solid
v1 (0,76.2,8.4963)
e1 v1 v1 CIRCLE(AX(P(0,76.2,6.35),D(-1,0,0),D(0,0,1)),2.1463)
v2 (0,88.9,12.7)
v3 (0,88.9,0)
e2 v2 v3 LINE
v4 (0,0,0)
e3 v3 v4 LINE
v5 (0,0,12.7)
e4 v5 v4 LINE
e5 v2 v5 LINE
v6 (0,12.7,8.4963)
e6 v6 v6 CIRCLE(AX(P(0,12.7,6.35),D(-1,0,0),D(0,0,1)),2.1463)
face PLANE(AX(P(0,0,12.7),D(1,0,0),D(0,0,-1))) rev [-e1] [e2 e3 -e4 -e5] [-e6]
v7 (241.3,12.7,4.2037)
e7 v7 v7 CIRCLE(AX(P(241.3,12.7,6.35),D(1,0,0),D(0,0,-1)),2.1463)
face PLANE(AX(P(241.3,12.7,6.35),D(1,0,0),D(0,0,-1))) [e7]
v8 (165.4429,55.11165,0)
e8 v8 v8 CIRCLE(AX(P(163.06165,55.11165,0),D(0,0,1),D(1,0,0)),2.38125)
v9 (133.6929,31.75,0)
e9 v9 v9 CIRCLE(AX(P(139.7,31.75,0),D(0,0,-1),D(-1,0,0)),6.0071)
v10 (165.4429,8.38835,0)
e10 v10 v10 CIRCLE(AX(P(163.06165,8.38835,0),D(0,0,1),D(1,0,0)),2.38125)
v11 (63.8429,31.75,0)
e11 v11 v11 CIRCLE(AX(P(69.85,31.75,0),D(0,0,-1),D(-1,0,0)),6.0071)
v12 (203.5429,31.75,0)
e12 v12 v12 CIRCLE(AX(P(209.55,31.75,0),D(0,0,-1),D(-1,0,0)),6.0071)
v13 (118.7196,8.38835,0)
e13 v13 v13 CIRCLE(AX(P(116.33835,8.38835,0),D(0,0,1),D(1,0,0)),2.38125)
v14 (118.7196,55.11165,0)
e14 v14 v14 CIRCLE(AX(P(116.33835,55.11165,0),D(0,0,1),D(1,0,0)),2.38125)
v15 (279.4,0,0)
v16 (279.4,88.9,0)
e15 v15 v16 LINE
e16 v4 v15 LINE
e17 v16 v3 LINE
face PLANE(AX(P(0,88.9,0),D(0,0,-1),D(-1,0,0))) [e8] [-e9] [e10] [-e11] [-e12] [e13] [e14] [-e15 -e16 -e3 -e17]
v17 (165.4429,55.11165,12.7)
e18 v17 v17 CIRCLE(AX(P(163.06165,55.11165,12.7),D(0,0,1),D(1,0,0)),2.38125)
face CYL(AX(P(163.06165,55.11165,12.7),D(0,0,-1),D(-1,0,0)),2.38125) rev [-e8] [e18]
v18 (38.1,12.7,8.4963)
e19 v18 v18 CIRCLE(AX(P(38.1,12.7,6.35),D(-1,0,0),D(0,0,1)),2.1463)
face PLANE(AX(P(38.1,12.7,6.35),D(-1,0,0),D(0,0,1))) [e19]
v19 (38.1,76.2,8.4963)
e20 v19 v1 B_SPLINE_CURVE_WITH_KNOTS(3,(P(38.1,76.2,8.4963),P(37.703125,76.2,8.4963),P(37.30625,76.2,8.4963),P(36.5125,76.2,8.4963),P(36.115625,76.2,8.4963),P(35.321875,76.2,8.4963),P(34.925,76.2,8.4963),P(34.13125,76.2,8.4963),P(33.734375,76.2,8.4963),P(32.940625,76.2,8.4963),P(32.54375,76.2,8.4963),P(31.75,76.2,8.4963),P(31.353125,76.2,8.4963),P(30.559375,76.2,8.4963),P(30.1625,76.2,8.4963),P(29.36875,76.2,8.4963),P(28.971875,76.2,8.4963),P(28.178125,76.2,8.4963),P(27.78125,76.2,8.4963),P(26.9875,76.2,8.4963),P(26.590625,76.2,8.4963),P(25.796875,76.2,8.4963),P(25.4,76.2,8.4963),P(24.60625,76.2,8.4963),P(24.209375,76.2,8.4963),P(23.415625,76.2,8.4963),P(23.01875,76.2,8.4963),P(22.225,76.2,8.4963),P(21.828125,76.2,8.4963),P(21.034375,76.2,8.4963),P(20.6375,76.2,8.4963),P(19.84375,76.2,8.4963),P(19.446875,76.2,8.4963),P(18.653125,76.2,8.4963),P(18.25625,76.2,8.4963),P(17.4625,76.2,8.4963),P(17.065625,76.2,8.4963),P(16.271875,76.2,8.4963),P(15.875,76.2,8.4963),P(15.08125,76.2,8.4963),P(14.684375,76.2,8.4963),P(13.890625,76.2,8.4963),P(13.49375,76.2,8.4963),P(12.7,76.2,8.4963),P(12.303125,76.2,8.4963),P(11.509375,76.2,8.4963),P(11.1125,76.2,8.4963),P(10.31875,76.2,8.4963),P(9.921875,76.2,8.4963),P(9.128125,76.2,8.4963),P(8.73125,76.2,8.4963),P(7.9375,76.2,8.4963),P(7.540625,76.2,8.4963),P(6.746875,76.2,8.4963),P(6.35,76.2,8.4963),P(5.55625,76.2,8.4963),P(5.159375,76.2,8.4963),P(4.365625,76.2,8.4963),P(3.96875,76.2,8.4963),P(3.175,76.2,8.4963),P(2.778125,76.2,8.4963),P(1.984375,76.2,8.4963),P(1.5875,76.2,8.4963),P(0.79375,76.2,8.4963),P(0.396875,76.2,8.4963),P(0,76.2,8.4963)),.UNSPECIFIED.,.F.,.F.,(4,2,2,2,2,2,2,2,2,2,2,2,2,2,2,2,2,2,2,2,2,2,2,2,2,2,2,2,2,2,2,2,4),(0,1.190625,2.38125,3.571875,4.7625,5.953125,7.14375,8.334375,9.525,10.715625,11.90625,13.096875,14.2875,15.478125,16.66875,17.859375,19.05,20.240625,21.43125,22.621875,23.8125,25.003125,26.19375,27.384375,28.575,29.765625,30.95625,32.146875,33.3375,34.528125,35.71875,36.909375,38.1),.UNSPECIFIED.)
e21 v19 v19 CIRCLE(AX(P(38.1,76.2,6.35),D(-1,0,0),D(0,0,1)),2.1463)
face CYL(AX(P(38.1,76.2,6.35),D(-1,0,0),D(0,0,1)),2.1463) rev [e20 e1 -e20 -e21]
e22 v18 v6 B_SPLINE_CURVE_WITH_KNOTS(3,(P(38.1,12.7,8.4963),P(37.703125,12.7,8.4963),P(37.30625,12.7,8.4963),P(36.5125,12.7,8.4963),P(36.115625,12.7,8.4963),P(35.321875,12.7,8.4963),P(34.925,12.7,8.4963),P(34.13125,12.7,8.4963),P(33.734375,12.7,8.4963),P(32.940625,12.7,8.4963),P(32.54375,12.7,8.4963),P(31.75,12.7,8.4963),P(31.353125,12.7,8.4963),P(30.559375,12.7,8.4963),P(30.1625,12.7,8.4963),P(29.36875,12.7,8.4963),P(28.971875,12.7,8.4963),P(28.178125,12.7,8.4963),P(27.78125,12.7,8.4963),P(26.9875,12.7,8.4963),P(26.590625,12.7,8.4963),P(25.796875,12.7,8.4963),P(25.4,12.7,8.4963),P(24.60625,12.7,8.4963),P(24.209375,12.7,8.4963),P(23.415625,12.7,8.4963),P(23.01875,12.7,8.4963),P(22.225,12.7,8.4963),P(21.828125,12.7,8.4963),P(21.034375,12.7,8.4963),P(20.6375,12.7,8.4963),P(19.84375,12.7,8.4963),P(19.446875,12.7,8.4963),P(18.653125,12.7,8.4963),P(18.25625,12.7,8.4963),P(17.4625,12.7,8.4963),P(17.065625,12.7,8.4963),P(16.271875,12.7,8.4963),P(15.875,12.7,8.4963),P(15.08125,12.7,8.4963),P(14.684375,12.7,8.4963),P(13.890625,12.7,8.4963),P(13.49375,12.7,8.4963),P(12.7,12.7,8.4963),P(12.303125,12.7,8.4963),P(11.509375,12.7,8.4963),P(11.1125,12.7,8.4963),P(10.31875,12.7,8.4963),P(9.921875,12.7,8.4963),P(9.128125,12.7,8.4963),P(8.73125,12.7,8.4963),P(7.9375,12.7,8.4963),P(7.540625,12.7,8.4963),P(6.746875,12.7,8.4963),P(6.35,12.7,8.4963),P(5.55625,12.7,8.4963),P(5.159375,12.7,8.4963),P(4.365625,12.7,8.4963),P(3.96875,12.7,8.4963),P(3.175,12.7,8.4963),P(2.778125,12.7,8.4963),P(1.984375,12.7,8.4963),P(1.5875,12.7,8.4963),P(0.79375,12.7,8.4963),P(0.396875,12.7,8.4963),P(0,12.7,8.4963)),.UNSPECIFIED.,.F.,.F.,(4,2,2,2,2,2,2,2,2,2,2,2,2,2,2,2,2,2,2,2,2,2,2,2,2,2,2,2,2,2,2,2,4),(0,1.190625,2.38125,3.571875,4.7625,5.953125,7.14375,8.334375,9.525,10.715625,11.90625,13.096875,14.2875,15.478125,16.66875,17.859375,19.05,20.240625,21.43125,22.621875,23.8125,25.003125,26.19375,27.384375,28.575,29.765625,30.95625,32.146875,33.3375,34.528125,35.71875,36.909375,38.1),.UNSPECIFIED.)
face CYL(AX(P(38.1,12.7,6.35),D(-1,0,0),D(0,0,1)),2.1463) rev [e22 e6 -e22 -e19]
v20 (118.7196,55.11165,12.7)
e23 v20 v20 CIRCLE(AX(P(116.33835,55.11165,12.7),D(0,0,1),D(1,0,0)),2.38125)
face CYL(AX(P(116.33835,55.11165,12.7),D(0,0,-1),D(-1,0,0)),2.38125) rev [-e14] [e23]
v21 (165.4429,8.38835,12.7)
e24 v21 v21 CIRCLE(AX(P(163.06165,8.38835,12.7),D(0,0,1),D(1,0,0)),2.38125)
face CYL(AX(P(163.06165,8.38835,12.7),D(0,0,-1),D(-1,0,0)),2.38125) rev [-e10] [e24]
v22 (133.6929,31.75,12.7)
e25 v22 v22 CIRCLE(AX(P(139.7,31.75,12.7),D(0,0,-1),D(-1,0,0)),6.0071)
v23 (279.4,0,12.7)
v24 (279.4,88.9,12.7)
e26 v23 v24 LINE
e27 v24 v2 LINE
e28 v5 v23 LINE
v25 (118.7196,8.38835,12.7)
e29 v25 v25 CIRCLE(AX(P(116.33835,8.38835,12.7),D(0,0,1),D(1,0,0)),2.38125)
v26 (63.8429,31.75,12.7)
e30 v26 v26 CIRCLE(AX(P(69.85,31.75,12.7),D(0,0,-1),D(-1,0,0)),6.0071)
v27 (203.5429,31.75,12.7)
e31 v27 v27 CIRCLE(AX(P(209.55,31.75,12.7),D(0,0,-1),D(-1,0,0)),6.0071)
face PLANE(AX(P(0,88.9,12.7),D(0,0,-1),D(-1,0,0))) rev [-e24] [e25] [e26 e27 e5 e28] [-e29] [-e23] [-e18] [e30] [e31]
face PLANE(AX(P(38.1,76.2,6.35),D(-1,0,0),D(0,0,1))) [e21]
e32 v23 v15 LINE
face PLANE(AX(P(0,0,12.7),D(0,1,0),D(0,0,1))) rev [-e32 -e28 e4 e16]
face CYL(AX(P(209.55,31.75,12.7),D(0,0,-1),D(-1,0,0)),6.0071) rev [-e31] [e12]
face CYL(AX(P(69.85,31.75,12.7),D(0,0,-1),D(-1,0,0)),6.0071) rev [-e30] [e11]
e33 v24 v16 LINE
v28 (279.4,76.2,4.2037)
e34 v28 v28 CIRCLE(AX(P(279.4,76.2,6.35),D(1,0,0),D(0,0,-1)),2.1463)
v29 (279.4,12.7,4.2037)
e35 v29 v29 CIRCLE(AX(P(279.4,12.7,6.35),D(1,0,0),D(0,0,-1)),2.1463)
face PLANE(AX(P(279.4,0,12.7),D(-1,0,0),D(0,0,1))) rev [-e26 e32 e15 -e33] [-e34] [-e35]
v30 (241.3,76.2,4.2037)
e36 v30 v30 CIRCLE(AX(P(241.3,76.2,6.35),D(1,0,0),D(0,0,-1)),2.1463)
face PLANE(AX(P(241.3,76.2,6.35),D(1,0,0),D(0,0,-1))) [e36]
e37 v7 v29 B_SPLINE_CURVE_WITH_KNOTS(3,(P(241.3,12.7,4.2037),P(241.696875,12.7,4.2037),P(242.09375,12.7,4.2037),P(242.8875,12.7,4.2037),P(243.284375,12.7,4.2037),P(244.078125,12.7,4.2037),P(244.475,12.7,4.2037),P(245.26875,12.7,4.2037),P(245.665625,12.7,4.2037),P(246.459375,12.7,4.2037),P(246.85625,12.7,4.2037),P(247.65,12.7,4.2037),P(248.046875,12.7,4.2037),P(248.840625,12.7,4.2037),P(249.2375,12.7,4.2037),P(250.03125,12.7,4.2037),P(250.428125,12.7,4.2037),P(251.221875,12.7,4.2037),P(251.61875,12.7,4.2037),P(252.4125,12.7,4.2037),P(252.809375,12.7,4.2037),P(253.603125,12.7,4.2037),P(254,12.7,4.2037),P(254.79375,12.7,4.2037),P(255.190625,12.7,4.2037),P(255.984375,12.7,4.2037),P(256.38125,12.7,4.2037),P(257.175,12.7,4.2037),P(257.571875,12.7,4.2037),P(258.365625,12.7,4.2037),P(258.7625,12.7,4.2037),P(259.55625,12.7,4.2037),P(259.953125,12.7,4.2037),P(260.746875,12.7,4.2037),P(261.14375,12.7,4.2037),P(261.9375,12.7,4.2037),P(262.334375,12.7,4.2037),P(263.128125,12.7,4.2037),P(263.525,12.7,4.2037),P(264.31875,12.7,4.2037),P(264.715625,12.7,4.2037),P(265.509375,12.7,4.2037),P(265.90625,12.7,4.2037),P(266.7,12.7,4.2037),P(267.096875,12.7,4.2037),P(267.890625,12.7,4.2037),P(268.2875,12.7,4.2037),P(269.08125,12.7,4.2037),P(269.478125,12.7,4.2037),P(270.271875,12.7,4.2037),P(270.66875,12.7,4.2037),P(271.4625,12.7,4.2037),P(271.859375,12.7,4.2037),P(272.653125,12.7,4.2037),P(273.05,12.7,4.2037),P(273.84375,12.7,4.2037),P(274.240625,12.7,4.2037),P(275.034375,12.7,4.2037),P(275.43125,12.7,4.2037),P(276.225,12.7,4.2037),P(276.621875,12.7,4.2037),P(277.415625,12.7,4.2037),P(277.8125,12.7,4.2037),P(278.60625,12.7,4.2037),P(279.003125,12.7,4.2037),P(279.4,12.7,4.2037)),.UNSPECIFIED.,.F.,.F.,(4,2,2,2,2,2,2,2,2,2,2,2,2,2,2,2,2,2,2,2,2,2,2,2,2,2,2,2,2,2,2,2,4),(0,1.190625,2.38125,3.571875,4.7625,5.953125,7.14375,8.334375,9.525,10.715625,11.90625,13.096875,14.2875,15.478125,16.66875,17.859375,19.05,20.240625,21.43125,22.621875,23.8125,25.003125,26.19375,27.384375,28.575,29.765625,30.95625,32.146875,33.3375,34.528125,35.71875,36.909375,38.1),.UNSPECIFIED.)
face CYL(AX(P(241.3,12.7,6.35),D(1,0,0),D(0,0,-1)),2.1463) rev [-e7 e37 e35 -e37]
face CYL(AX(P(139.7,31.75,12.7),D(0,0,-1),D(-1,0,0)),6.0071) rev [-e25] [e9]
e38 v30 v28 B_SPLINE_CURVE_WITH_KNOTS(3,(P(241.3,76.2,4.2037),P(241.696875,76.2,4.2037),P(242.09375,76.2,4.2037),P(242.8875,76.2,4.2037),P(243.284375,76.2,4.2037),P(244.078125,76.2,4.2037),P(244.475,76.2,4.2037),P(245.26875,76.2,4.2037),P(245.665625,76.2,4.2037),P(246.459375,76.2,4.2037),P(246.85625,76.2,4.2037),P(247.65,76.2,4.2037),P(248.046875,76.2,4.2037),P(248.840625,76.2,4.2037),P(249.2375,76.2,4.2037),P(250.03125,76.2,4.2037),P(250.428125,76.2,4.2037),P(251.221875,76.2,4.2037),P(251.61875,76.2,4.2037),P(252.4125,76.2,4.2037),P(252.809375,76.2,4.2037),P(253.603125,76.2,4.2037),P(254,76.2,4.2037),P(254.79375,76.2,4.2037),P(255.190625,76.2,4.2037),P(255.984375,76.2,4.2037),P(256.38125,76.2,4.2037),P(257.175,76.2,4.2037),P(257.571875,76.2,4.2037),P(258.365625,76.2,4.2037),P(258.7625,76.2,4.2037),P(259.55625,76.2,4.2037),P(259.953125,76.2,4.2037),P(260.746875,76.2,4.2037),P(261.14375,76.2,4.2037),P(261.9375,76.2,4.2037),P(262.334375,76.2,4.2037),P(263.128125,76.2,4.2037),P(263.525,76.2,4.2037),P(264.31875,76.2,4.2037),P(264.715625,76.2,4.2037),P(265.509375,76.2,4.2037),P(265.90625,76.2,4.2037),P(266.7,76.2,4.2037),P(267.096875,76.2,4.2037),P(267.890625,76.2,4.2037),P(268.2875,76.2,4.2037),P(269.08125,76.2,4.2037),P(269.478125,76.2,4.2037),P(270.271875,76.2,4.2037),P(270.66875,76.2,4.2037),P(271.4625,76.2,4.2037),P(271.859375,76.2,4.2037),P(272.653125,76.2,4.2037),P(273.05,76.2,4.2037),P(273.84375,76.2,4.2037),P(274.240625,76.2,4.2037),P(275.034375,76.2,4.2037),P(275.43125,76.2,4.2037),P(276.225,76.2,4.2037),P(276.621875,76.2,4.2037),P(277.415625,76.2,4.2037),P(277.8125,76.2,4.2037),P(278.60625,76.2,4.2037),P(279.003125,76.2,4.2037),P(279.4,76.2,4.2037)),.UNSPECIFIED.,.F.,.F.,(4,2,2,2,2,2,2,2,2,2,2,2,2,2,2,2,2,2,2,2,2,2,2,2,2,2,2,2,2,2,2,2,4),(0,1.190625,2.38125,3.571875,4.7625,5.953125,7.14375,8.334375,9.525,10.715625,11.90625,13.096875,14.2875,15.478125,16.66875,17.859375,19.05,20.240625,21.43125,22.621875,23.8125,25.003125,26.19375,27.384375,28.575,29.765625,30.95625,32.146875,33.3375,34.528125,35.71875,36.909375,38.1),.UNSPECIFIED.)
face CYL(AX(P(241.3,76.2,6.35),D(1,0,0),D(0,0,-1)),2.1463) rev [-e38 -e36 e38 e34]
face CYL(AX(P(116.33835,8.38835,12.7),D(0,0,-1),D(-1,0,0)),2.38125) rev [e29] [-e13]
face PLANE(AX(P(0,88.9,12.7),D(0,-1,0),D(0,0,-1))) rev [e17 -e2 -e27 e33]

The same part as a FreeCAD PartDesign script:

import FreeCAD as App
import Part
import Sketcher
Q = App.Units.Quantity


def add_polygon(sketch, points):
    """Adds a closed chain of lines whose ends are joined by coincident constraints."""
    first, n = sketch.GeometryCount, len(points)
    for a, b in zip(points, points[1:] + points[:1]):
        sketch.addGeometry(Part.LineSegment(App.Vector(*a, 0), App.Vector(*b, 0)), False)
    for i in range(n):
        sketch.addConstraint(Sketcher.Constraint("Coincident", first + i, 2, first + (i + 1) % n, 1))

doc = App.newDocument("Part")
body = doc.addObject("PartDesign::Body", "Body")

# Sketch on XY plane
sketch1 = body.newObject("Sketcher::SketchObject", "Sketch")
sketch1.AttachmentSupport = (doc.getObject("XY_Plane"), [""])
sketch1.MapMode = "FlatFace"
add_polygon(sketch1, [(0, 89), (0, 0), (279, 0), (279, 89)])  # lines 0-3
sketch1.addConstraint([
    Sketcher.Constraint("Vertical", 0),
    Sketcher.Constraint("Horizontal", 1),
    Sketcher.Constraint("Vertical", 2),
    Sketcher.Constraint("Horizontal", 3),
    Sketcher.Constraint("Coincident", 0, 2, -1, 1),
    Sketcher.Constraint("DistanceX", 1, 1, 1, 2, Q("11 in")),
    Sketcher.Constraint("DistanceY", 0, 2, 0, 1, Q("3.5 in")),
])
pad1 = body.newObject("PartDesign::Pad", "Pad")
pad1.Profile = sketch1
pad1.Length = Q("0.5 in")

# Sketch on YZ plane
sketch2 = body.newObject("Sketcher::SketchObject", "Sketch001")
sketch2.AttachmentSupport = (doc.getObject("YZ_Plane"), [""])
sketch2.MapMode = "FlatFace"
sketch2.AttachmentOffset = App.Placement(App.Vector(0, 0, 11 * 25.4), App.Rotation())
sketch2.addGeometry([
    Part.Circle(App.Vector(76.2, 6.3, 0), App.Vector(0, 0, 1), 2.1),
    Part.Circle(App.Vector(12.7, 6.3, 0), App.Vector(0, 0, 1), 2.1),
], False)
sketch2.addConstraint([
    Sketcher.Constraint("Equal", 0, 1),
    Sketcher.Constraint("Horizontal", 0, 3, 1, 3),
    Sketcher.Constraint("Diameter", 0, Q("0.169 in")),
    Sketcher.Constraint("DistanceX", -1, 1, 0, 3, Q("3 in")),
    Sketcher.Constraint("DistanceX", -1, 1, 1, 3, Q("0.5 in")),
    Sketcher.Constraint("DistanceY", -1, 1, 0, 3, Q("0.25 in")),
])
pocket1 = body.newObject("PartDesign::Pocket", "Pocket")
pocket1.Profile = sketch2
pocket1.Length = Q("1.5 in")

# Sketch on YZ plane
sketch3 = body.newObject("Sketcher::SketchObject", "Sketch002")
sketch3.AttachmentSupport = (doc.getObject("YZ_Plane"), [""])
sketch3.MapMode = "FlatFace"
sketch3.AttachmentOffset = App.Placement(App.Vector(0, 0, 1.5 * 25.4), App.Rotation())
sketch3.addGeometry([
    Part.Circle(App.Vector(76.2, 6.3, 0), App.Vector(0, 0, 1), 2.1),
    Part.Circle(App.Vector(12.7, 6.3, 0), App.Vector(0, 0, 1), 2.1),
], False)
sketch3.addConstraint([
    Sketcher.Constraint("Equal", 0, 1),
    Sketcher.Constraint("Horizontal", 0, 3, 1, 3),
    Sketcher.Constraint("Diameter", 0, Q("0.169 in")),
    Sketcher.Constraint("DistanceX", -1, 1, 0, 3, Q("3 in")),
    Sketcher.Constraint("DistanceX", -1, 1, 1, 3, Q("0.5 in")),
    Sketcher.Constraint("DistanceY", -1, 1, 0, 3, Q("0.25 in")),
])
pocket2 = body.newObject("PartDesign::Pocket", "Pocket001")
pocket2.Profile = sketch3
pocket2.Length = Q("1.5 in")

# Sketch on XY plane
sketch4 = body.newObject("Sketcher::SketchObject", "Sketch003")
sketch4.AttachmentSupport = (doc.getObject("XY_Plane"), [""])
sketch4.MapMode = "FlatFace"
sketch4.addGeometry([
    Part.Circle(App.Vector(210, 32, 0), App.Vector(0, 0, 1), 6),
    Part.Circle(App.Vector(140, 32, 0), App.Vector(0, 0, 1), 6),
    Part.Circle(App.Vector(70, 32, 0), App.Vector(0, 0, 1), 6),
], False)
sketch4.addConstraint([
    Sketcher.Constraint("Equal", 0, 1),
    Sketcher.Constraint("Equal", 1, 2),
    Sketcher.Constraint("Horizontal", 0, 3, 1, 3),
    Sketcher.Constraint("Horizontal", 1, 3, 2, 3),
    Sketcher.Constraint("Diameter", 0, Q("0.473 in")),
    Sketcher.Constraint("DistanceX", -1, 1, 1, 3, Q("5.5 in")),
    Sketcher.Constraint("DistanceX", 2, 3, 0, 3, Q("5.5 in")),
    Sketcher.Constraint("DistanceX", -1, 1, 0, 3, Q("8.25 in")),
    Sketcher.Constraint("DistanceY", -1, 1, 0, 3, Q("1.25 in")),
])
pocket3 = body.newObject("PartDesign::Pocket", "Pocket002")
pocket3.Profile = sketch4
pocket3.Type = "ThroughAll"
pocket3.Reversed = True

# Sketch on XY plane
sketch5 = body.newObject("Sketcher::SketchObject", "Sketch004")
sketch5.AttachmentSupport = (doc.getObject("XY_Plane"), [""])
sketch5.MapMode = "FlatFace"
sketch5.addGeometry([
    Part.Circle(App.Vector(163.1, 55.1, 0), App.Vector(0, 0, 1), 2.4),
    Part.Circle(App.Vector(116.3, 55.1, 0), App.Vector(0, 0, 1), 2.4),
    Part.Circle(App.Vector(116.3, 8.4, 0), App.Vector(0, 0, 1), 2.4),
    Part.Circle(App.Vector(163.1, 8.4, 0), App.Vector(0, 0, 1), 2.4),
], False)
sketch5.addConstraint([
    Sketcher.Constraint("Equal", 0, 1),
    Sketcher.Constraint("Equal", 1, 2),
    Sketcher.Constraint("Equal", 2, 3),
    Sketcher.Constraint("Horizontal", 0, 3, 1, 3),
    Sketcher.Constraint("Horizontal", 2, 3, 3, 3),
    Sketcher.Constraint("Vertical", 1, 3, 2, 3),
    Sketcher.Constraint("Vertical", 0, 3, 3, 3),
    Sketcher.Constraint("Diameter", 0, Q("0.1875 in")),
    Sketcher.Constraint("DistanceX", 1, 3, 0, 3, Q("1.8395 in")),
    Sketcher.Constraint("DistanceY", 2, 3, 1, 3, Q("1.8395 in")),
    Sketcher.Constraint("DistanceX", -1, 1, 0, 3, 163.06165),
    Sketcher.Constraint("DistanceY", -1, 1, 0, 3, 55.11165),
])
pocket4 = body.newObject("PartDesign::Pocket", "Pocket003")
pocket4.Profile = sketch5
pocket4.Type = "ThroughAll"
pocket4.Reversed = True

doc.recompute()
